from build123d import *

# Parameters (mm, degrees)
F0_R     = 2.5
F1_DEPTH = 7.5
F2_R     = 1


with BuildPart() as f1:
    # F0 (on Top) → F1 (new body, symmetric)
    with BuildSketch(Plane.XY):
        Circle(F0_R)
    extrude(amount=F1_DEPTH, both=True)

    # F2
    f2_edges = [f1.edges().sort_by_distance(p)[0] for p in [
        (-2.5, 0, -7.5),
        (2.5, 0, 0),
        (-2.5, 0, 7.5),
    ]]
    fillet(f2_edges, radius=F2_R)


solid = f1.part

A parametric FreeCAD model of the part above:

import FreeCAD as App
import Part
import Sketcher
Q = App.Units.Quantity

doc = App.newDocument("Part")
params = doc.addObject("Spreadsheet::Sheet", "Params")
for row, (alias, value) in enumerate([
    ("sketch1_diameter", "5 mm"),
    ("pad1_length", "15 mm"),
    ("fillet_radius", "1 mm"),
], start=1):
    params.set(f"A{row}", alias)
    params.set(f"B{row}", "=" + value)
    params.setAlias(f"B{row}", alias)

body = doc.addObject("PartDesign::Body", "Body")

# Sketch on XY plane
sketch1 = body.newObject("Sketcher::SketchObject", "Sketch")
sketch1.AttachmentSupport = (doc.getObject("XY_Plane"), [""])
sketch1.MapMode = "FlatFace"
sketch1.addGeometry(Part.Circle(App.Vector(0, 0, 0), App.Vector(0, 0, 1), 2.5), False)
sketch1.addConstraint([
    Sketcher.Constraint("Coincident", 0, 3, -1, 1),
    Sketcher.Constraint("Diameter", 0, Q("5 mm")),
])
sketch1.setExpression("Constraints[1]", "Params.sketch1_diameter")
pad1 = body.newObject("PartDesign::Pad", "Pad")
pad1.Profile = sketch1
pad1.setExpression("Length", "Params.pad1_length")
pad1.Midplane = True
doc.recompute()

fillet = body.newObject("PartDesign::Fillet", "Fillet")
fillet.Base = (pad1, ["Edge1"])
fillet.UseAllEdges = True
fillet.setExpression("Radius", "Params.fillet_radius")

doc.recompute()
